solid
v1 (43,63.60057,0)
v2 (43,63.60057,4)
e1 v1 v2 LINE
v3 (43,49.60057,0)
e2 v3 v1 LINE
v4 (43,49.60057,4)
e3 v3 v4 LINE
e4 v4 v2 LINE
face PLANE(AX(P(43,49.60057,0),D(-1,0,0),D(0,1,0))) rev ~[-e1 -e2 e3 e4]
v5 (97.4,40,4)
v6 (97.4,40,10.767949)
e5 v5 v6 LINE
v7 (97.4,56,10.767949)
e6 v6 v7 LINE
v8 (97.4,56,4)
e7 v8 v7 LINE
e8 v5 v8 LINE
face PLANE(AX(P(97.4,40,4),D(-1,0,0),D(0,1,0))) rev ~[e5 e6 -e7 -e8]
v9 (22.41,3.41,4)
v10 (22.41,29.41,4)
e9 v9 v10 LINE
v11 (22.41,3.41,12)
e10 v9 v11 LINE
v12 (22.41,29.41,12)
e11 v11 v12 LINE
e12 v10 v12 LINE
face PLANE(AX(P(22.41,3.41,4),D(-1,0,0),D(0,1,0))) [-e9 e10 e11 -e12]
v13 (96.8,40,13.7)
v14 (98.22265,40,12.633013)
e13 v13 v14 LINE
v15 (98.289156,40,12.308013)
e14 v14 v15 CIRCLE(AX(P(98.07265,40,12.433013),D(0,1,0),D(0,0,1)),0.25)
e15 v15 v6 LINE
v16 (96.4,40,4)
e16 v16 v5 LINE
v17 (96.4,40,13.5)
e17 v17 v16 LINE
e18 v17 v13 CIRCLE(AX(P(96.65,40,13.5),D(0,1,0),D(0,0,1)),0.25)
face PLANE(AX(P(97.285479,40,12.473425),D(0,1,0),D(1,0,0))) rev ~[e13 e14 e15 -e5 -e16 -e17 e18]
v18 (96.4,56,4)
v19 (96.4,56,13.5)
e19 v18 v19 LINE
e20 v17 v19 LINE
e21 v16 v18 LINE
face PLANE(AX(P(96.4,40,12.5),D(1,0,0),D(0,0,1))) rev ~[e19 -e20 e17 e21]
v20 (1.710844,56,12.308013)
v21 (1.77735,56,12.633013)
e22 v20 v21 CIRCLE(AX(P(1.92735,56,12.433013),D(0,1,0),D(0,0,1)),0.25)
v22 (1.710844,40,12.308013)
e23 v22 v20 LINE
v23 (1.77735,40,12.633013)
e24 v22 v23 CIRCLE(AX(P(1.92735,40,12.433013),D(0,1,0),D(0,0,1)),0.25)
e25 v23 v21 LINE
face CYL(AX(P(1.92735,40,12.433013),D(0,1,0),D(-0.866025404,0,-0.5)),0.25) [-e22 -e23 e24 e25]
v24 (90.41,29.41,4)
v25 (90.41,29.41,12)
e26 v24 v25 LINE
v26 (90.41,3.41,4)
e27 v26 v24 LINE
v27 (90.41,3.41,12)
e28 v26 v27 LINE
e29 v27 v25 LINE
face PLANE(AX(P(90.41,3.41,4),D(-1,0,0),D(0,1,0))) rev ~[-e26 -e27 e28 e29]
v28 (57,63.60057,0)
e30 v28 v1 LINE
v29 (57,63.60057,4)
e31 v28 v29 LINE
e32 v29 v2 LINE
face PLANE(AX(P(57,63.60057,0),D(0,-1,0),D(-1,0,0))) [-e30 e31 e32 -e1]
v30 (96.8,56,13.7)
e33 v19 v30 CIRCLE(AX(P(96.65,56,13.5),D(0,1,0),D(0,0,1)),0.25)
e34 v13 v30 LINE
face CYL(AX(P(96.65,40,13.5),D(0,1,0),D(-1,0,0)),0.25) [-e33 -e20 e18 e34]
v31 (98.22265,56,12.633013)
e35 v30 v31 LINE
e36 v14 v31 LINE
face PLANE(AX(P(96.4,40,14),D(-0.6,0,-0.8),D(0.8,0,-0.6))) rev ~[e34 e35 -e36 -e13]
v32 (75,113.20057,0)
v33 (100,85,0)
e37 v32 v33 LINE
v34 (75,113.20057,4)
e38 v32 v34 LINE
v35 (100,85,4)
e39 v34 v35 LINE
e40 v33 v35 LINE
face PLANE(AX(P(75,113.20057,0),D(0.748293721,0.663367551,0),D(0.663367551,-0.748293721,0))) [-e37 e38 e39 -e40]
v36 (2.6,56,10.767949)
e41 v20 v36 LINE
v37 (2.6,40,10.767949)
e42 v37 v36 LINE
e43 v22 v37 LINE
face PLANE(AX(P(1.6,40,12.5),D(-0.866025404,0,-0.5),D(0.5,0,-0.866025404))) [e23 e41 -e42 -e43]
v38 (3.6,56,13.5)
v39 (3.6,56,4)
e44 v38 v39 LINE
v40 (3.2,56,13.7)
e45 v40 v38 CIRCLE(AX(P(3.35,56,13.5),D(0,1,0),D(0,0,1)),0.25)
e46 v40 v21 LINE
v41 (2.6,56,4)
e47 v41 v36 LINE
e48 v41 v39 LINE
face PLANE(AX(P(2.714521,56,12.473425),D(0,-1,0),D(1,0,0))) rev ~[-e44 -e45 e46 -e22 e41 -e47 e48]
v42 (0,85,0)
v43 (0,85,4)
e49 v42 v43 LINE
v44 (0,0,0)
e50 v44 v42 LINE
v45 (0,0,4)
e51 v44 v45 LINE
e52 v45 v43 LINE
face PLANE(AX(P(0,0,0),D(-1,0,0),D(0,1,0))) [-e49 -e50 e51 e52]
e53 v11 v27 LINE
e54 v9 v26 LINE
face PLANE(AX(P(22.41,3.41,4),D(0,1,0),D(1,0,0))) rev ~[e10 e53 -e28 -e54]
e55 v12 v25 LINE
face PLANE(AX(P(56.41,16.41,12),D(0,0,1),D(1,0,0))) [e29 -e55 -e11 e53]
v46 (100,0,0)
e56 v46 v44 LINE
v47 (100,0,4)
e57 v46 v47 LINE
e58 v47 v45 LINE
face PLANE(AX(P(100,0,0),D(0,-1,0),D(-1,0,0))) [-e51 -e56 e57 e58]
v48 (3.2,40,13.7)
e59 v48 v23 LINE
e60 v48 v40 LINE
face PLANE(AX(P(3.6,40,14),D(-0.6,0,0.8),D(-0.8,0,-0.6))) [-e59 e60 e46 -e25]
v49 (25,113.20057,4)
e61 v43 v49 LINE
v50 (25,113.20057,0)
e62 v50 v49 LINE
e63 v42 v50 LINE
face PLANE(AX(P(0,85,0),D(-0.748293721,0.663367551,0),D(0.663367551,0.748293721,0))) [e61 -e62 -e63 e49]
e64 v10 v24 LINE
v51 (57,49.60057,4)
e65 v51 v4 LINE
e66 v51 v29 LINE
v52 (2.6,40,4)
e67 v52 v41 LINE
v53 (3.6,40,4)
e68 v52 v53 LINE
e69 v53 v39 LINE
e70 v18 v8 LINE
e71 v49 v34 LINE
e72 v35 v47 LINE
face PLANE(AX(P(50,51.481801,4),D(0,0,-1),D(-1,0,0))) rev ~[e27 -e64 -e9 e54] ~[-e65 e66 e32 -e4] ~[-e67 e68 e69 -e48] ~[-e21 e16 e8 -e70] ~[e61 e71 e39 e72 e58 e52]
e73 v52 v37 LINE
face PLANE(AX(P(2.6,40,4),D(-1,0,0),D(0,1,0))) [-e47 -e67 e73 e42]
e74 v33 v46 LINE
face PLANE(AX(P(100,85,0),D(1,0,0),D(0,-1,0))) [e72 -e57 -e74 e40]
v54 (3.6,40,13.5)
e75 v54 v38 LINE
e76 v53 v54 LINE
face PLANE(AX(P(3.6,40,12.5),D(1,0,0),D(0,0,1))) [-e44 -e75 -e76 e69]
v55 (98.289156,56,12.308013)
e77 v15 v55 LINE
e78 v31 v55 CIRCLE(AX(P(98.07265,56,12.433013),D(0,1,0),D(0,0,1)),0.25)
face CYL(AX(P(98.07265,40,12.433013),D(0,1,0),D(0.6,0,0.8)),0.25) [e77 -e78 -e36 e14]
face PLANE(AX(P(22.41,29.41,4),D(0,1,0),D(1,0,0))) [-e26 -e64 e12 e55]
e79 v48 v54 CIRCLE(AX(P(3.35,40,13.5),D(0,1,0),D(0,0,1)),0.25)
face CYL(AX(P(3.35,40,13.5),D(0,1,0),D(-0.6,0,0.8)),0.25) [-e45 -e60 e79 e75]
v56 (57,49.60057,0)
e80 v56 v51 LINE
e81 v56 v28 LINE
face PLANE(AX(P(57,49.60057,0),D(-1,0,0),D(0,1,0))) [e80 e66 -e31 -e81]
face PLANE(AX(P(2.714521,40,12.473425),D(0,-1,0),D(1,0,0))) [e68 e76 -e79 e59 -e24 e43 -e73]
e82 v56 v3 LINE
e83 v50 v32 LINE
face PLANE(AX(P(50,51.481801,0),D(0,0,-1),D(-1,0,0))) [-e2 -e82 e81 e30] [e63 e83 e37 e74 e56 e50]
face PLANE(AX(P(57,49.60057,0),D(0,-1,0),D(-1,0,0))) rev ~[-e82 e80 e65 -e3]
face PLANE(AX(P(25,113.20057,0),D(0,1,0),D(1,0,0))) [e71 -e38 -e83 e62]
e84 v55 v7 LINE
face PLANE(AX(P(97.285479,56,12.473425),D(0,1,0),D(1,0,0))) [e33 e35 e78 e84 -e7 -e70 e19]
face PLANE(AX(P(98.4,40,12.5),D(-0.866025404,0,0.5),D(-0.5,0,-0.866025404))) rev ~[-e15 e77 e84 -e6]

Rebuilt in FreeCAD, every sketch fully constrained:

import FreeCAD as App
import Part
import Sketcher
from FreeCAD import Vector
Q = App.Units.Quantity


def edges_at(feature, points):
    """Names of the edges that pass closest to the given points."""
    edges = feature.Shape.Edges
    near = lambda p: min(range(len(edges)), key=lambda i: edges[i].distToShape(Part.Vertex(*p))[0])
    return sorted({f"Edge{near(p) + 1}" for p in points})


def add_polygon(sketch, points):
    """Adds a closed chain of lines whose ends are joined by coincident constraints."""
    first, n = sketch.GeometryCount, len(points)
    for a, b in zip(points, points[1:] + points[:1]):
        sketch.addGeometry(Part.LineSegment(App.Vector(*a, 0), App.Vector(*b, 0)), False)
    for i in range(n):
        sketch.addConstraint(Sketcher.Constraint("Coincident", first + i, 2, first + (i + 1) % n, 1))

doc = App.newDocument("Part")
body = doc.addObject("PartDesign::Body", "Body")

sketch1 = body.newObject("Sketcher::SketchObject", "Sketch")
sketch1.AttachmentSupport = (doc.getObject("XY_Plane"), [""])
sketch1.MapMode = "FlatFace"
add_polygon(sketch1, [(0, 85), (0, 0), (100, 0), (100, 85), (75, 113.20057), (25, 113.20057)])
sketch1.addConstraint([
    Sketcher.Constraint("Vertical", 0),
    Sketcher.Constraint("Horizontal", 1),
    Sketcher.Constraint("Vertical", 2),
    Sketcher.Constraint("Horizontal", 4),
    Sketcher.Constraint("Coincident", 0, 2, -1, 1),
    Sketcher.Constraint("Horizontal", 2, 2, 5, 2),
    Sketcher.Constraint("Equal", 3, 5),
    Sketcher.Constraint("DistanceX", 1, 1, 1, 2, Q("100 mm")),
    Sketcher.Constraint("DistanceX", 4, 2, 4, 1, Q("50 mm")),
    Sketcher.Constraint("DistanceY", 0, 2, 0, 1, Q("85 mm")),
    Sketcher.Constraint("Distance", 3, Q("37.686498 mm")),
])
pad1 = body.newObject("PartDesign::Pad", "Pad")
pad1.Profile = sketch1
pad1.Length = 4

sketch2 = body.newObject("Sketcher::SketchObject", "Sketch001")
sketch2.AttachmentSupport = (doc.getObject("XY_Plane"), [""])
sketch2.MapMode = "FlatFace"
sketch2.AttachmentOffset = App.Placement(Vector(0, 0, 4), App.Rotation())
add_polygon(sketch2, [(22.41, 29.41), (22.41, 3.41), (90.41, 3.41), (90.41, 29.41)])
sketch2.addConstraint([
    Sketcher.Constraint("Vertical", 0),
    Sketcher.Constraint("Horizontal", 1),
    Sketcher.Constraint("Vertical", 2),
    Sketcher.Constraint("Horizontal", 3),
    Sketcher.Constraint("DistanceX", 1, 1, 1, 2, Q("68 mm")),
    Sketcher.Constraint("DistanceY", 0, 2, 0, 1, Q("26 mm")),
    Sketcher.Constraint("DistanceX", -1, 1, 0, 2, Q("22.41 mm")),
    Sketcher.Constraint("DistanceY", -1, 1, 0, 2, Q("3.41 mm")),
])
pad2 = body.newObject("PartDesign::Pad", "Pad001")
pad2.Profile = sketch2
pad2.Length = 8

sketch3 = body.newObject("Sketcher::SketchObject", "Sketch002")
sketch3.AttachmentSupport = (doc.getObject("XY_Plane"), [""])
sketch3.MapMode = "FlatFace"
add_polygon(sketch3, [(57, 63.60057), (57, 49.60057), (43, 49.60057), (43, 63.60057)])
sketch3.addConstraint([
    Sketcher.Constraint("Vertical", 0),
    Sketcher.Constraint("Horizontal", 1),
    Sketcher.Constraint("Vertical", 2),
    Sketcher.Constraint("Horizontal", 3),
    Sketcher.Constraint("Equal", 3, 0),
    Sketcher.Constraint("DistanceX", 1, 2, 1, 1, Q("14 mm")),
    Sketcher.Constraint("DistanceX", -1, 1, 0, 2, Q("57 mm")),
    Sketcher.Constraint("DistanceY", -1, 1, 0, 2, Q("49.60057 mm")),
])
pocket1 = body.newObject("PartDesign::Pocket", "Pocket")
pocket1.Profile = sketch3
pocket1.Type = "ThroughAll"
pocket1.Reversed = True

sketch4 = body.newObject("Sketcher::SketchObject", "Sketch003")
sketch4.AttachmentSupport = (doc.getObject("XY_Plane"), [""])
sketch4.MapMode = "FlatFace"
sketch4.AttachmentOffset = App.Placement(Vector(0, 0, 4), App.Rotation())
add_polygon(sketch4, [(2.6, 56), (2.6, 40), (3.6, 40), (3.6, 56)])
add_polygon(sketch4, [(96.4, 56), (96.4, 40), (97.4, 40), (97.4, 56)])
sketch4.addConstraint([
    Sketcher.Constraint("Vertical", 0),
    Sketcher.Constraint("Horizontal", 1),
    Sketcher.Constraint("Vertical", 2),
    Sketcher.Constraint("Horizontal", 3),
    Sketcher.Constraint("Vertical", 4),
    Sketcher.Constraint("Horizontal", 5),
    Sketcher.Constraint("Vertical", 6),
    Sketcher.Constraint("Horizontal", 7),
    Sketcher.Constraint("Horizontal", 1, 2, 4, 2),
    Sketcher.Constraint("Horizontal", 3, 2, 6, 2),
    Sketcher.Constraint("Equal", 3, 5),
    Sketcher.Constraint("DistanceX", 1, 1, 1, 2, Q("1 mm")),
    Sketcher.Constraint("DistanceY", 0, 2, 0, 1, Q("16 mm")),
    Sketcher.Constraint("DistanceY", -1, 1, 0, 2, Q("40 mm")),
    Sketcher.Constraint("DistanceX", -1, 1, 0, 2, Q("2.6 mm")),
    Sketcher.Constraint("DistanceX", -1, 1, 4, 2, Q("96.4 mm")),
])
pad3 = body.newObject("PartDesign::Pad", "Pad002")
pad3.Profile = sketch4
pad3.Length = 8.5

sketch5 = body.newObject("Sketcher::SketchObject", "Sketch004")
sketch5.AttachmentSupport = (doc.getObject("XZ_Plane"), [""])
sketch5.MapMode = "FlatFace"
sketch5.AttachmentOffset = App.Placement(Vector(0, 0, -40), App.Rotation())
add_polygon(sketch5, [(97.4, 10.767949), (98.4, 12.5), (96.4, 14), (96.4, 12.5), (97.4, 12.5)])
sketch5.addConstraint([
    Sketcher.Constraint("Vertical", 2),
    Sketcher.Constraint("Horizontal", 3),
    Sketcher.Constraint("Vertical", 4),
    Sketcher.Constraint("Horizontal", 0, 2, 2, 2),
    Sketcher.Constraint("DistanceX", 3, 1, 3, 2, Q("1 mm")),
    Sketcher.Constraint("Angle", 0, Q("60 deg")),
    Sketcher.Constraint("Distance", 0, Q("2 mm")),
    Sketcher.Constraint("DistanceY", 2, 2, 2, 1, Q("1.5 mm")),
    Sketcher.Constraint("DistanceY", -1, 1, 1, 2, Q("14 mm")),
    Sketcher.Constraint("DistanceX", -1, 1, 0, 2, Q("98.4 mm")),
])
pad4 = body.newObject("PartDesign::Pad", "Pad003")
pad4.Profile = sketch5
pad4.Length = 16
pad4.Reversed = True

sketch6 = body.newObject("Sketcher::SketchObject", "Sketch005")
sketch6.AttachmentSupport = (doc.getObject("XZ_Plane"), [""])
sketch6.MapMode = "FlatFace"
sketch6.AttachmentOffset = App.Placement(Vector(0, 0, -40), App.Rotation())
add_polygon(sketch6, [(1.6, 12.5), (2.6, 10.767949), (2.6, 12.5), (3.6, 12.5), (3.6, 14)])
sketch6.addConstraint([
    Sketcher.Constraint("Vertical", 1),
    Sketcher.Constraint("Horizontal", 2),
    Sketcher.Constraint("Vertical", 3),
    Sketcher.Constraint("Horizontal", 2, 2, 4, 2),
    Sketcher.Constraint("DistanceX", 2, 1, 2, 2, Q("1 mm")),
    Sketcher.Constraint("Angle", 0, Q("-60 deg")),
    Sketcher.Constraint("Distance", 0, Q("2 mm")),
    Sketcher.Constraint("DistanceY", 3, 1, 3, 2, Q("1.5 mm")),
    Sketcher.Constraint("DistanceY", -1, 1, 3, 2, Q("14 mm")),
    Sketcher.Constraint("DistanceX", -1, 1, 0, 2, Q("2.6 mm")),
])
pad5 = body.newObject("PartDesign::Pad", "Pad004")
pad5.Profile = sketch6
pad5.Length = 16
pad5.Reversed = True
doc.recompute()

fillet = body.newObject("PartDesign::Fillet", "Fillet")
fillet.Base = (pad5, edges_at(pad5, [(98.4, 48, 12.5), (1.6, 48, 12.5)]))
fillet.Radius = 0.25
doc.recompute()

fillet2 = body.newObject("PartDesign::Fillet", "Fillet001")
fillet2.Base = (fillet, edges_at(fillet, [(96.4, 48, 14), (3.6, 48, 14)]))
fillet2.Radius = 0.25

doc.recompute()
